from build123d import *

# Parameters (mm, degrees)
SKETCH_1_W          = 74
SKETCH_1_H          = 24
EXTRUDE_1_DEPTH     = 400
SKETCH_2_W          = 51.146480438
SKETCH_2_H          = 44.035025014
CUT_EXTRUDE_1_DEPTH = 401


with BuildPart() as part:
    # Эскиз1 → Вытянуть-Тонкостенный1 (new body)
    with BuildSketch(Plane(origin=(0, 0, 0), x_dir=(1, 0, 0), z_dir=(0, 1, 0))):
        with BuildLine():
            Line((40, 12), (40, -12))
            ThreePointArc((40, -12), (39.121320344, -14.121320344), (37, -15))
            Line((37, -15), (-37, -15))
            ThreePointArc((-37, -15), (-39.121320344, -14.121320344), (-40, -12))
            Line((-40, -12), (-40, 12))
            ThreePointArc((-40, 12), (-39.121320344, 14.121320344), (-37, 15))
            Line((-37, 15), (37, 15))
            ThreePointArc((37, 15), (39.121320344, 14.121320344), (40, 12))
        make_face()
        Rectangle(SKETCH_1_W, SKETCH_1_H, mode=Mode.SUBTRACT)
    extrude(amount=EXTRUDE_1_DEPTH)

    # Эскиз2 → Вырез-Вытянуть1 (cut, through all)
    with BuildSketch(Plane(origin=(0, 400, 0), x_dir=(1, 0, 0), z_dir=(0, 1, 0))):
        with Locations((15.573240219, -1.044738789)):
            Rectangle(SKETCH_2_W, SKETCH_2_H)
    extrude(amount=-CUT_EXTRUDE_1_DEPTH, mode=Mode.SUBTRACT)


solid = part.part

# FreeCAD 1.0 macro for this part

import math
import FreeCAD as App
import Part
import Sketcher

V = App.Vector

doc = App.newDocument("Part")
body = doc.addObject("PartDesign::Body", "Body")

sketch1 = body.newObject("Sketcher::SketchObject", "Sketch")
sketch1.AttachmentSupport = (doc.getObject("XZ_Plane"), [""])
sketch1.MapMode = "FlatFace"
sketch1.addGeometry(Part.LineSegment(V(40, 12, 0), V(40, -12, 0)), False)
sketch1.addGeometry(Part.ArcOfCircle(Part.Circle(V(37, -12, 0), V(0, 0, 1), 3), math.radians(-90), math.radians(0)), False)
sketch1.addGeometry(Part.LineSegment(V(37, -15, 0), V(-37, -15, 0)), False)
sketch1.addGeometry(Part.ArcOfCircle(Part.Circle(V(-37, -12, 0), V(0, 0, 1), 3), math.radians(180), math.radians(270)), False)
sketch1.addGeometry(Part.LineSegment(V(-40, -12, 0), V(-40, 12, 0)), False)
sketch1.addGeometry(Part.ArcOfCircle(Part.Circle(V(-37, 12, 0), V(0, 0, 1), 3), math.radians(90), math.radians(180)), False)
sketch1.addGeometry(Part.LineSegment(V(-37, 15, 0), V(37, 15, 0)), False)
sketch1.addGeometry(Part.ArcOfCircle(Part.Circle(V(37, 12, 0), V(0, 0, 1), 3), math.radians(0), math.radians(90)), False)
sketch1.addGeometry(Part.LineSegment(V(-37, 12, 0), V(-37, -12, 0)), False)
sketch1.addGeometry(Part.LineSegment(V(-37, -12, 0), V(37, -12, 0)), False)
sketch1.addGeometry(Part.LineSegment(V(37, -12, 0), V(37, 12, 0)), False)
sketch1.addGeometry(Part.LineSegment(V(37, 12, 0), V(-37, 12, 0)), False)
sketch1.addConstraint(Sketcher.Constraint("Tangent", 0, 2, 1, 2))
sketch1.addConstraint(Sketcher.Constraint("Tangent", 1, 1, 2, 1))
sketch1.addConstraint(Sketcher.Constraint("Tangent", 2, 2, 3, 2))
sketch1.addConstraint(Sketcher.Constraint("Tangent", 3, 1, 4, 1))
sketch1.addConstraint(Sketcher.Constraint("Tangent", 4, 2, 5, 2))
sketch1.addConstraint(Sketcher.Constraint("Tangent", 5, 1, 6, 1))
sketch1.addConstraint(Sketcher.Constraint("Tangent", 6, 2, 7, 2))
sketch1.addConstraint(Sketcher.Constraint("Tangent", 7, 1, 0, 1))
sketch1.addConstraint(Sketcher.Constraint("Coincident", 8, 2, 9, 1))
sketch1.addConstraint(Sketcher.Constraint("Coincident", 9, 2, 10, 1))
sketch1.addConstraint(Sketcher.Constraint("Coincident", 10, 2, 11, 1))
sketch1.addConstraint(Sketcher.Constraint("Coincident", 11, 2, 8, 1))
sketch1.addConstraint(Sketcher.Constraint("Vertical", 0))
sketch1.addConstraint(Sketcher.Constraint("Horizontal", 2))
sketch1.addConstraint(Sketcher.Constraint("Vertical", 4))
sketch1.addConstraint(Sketcher.Constraint("Horizontal", 6))
sketch1.addConstraint(Sketcher.Constraint("Vertical", 8))
sketch1.addConstraint(Sketcher.Constraint("Horizontal", 9))
sketch1.addConstraint(Sketcher.Constraint("Vertical", 10))
sketch1.addConstraint(Sketcher.Constraint("Horizontal", 11))
sketch1.addConstraint(Sketcher.Constraint("Coincident", 8, 2, 3, 3))
sketch1.addConstraint(Sketcher.Constraint("Coincident", 9, 2, 1, 3))
sketch1.addConstraint(Sketcher.Constraint("Coincident", 10, 2, 7, 3))
sketch1.addConstraint(Sketcher.Constraint("Equal", 3, 5))
sketch1.addConstraint(Sketcher.Constraint("Symmetric", 1, 3, 5, 3, -1, 1))
sketch1.addConstraint(Sketcher.Constraint("Radius", 1, 3.0))
sketch1.addConstraint(Sketcher.Constraint("DistanceX", 2, 2, 2, 1, 74.0))
sketch1.addConstraint(Sketcher.Constraint("DistanceY", 0, 2, 0, 1, 24.0))
pad1 = body.newObject("PartDesign::Pad", "Pad")
pad1.Profile = sketch1
pad1.Length = 400
pad1.Reversed = True

sketch2 = body.newObject("Sketcher::SketchObject", "Sketch001")
sketch2.AttachmentSupport = (doc.getObject("XZ_Plane"), [""])
sketch2.MapMode = "FlatFace"
sketch2.AttachmentOffset = App.Placement(V(0, 0, -400), App.Rotation())
sketch2.addGeometry(Part.LineSegment(V(-10, -21, 0), V(-10, 23, 0)), False)
sketch2.addGeometry(Part.LineSegment(V(-10, 23, 0), V(41, 23, 0)), False)
sketch2.addGeometry(Part.LineSegment(V(41, 23, 0), V(41, -21, 0)), False)
sketch2.addGeometry(Part.LineSegment(V(41, -21, 0), V(-10, -21, 0)), False)
sketch2.addConstraint(Sketcher.Constraint("Coincident", 0, 2, 1, 1))
sketch2.addConstraint(Sketcher.Constraint("Coincident", 1, 2, 2, 1))
sketch2.addConstraint(Sketcher.Constraint("Coincident", 2, 2, 3, 1))
sketch2.addConstraint(Sketcher.Constraint("Coincident", 3, 2, 0, 1))
sketch2.addConstraint(Sketcher.Constraint("Vertical", 0))
sketch2.addConstraint(Sketcher.Constraint("Horizontal", 1))
sketch2.addConstraint(Sketcher.Constraint("Vertical", 2))
sketch2.addConstraint(Sketcher.Constraint("Horizontal", 3))
sketch2.addConstraint(Sketcher.Constraint("DistanceX", 0, 2, -1, 1, 10.0))
sketch2.addConstraint(Sketcher.Constraint("DistanceX", 1, 1, 1, 2, 51.14648))
sketch2.addConstraint(Sketcher.Constraint("DistanceY", 0, 1, 0, 2, 44.035025))
sketch2.addConstraint(Sketcher.Constraint("DistanceY", -1, 1, 0, 2, 23.062251))
pocket1 = body.newObject("PartDesign::Pocket", "Pocket")
pocket1.Profile = sketch2
pocket1.Type = "ThroughAll"
pocket1.Reversed = True

doc.recompute()
